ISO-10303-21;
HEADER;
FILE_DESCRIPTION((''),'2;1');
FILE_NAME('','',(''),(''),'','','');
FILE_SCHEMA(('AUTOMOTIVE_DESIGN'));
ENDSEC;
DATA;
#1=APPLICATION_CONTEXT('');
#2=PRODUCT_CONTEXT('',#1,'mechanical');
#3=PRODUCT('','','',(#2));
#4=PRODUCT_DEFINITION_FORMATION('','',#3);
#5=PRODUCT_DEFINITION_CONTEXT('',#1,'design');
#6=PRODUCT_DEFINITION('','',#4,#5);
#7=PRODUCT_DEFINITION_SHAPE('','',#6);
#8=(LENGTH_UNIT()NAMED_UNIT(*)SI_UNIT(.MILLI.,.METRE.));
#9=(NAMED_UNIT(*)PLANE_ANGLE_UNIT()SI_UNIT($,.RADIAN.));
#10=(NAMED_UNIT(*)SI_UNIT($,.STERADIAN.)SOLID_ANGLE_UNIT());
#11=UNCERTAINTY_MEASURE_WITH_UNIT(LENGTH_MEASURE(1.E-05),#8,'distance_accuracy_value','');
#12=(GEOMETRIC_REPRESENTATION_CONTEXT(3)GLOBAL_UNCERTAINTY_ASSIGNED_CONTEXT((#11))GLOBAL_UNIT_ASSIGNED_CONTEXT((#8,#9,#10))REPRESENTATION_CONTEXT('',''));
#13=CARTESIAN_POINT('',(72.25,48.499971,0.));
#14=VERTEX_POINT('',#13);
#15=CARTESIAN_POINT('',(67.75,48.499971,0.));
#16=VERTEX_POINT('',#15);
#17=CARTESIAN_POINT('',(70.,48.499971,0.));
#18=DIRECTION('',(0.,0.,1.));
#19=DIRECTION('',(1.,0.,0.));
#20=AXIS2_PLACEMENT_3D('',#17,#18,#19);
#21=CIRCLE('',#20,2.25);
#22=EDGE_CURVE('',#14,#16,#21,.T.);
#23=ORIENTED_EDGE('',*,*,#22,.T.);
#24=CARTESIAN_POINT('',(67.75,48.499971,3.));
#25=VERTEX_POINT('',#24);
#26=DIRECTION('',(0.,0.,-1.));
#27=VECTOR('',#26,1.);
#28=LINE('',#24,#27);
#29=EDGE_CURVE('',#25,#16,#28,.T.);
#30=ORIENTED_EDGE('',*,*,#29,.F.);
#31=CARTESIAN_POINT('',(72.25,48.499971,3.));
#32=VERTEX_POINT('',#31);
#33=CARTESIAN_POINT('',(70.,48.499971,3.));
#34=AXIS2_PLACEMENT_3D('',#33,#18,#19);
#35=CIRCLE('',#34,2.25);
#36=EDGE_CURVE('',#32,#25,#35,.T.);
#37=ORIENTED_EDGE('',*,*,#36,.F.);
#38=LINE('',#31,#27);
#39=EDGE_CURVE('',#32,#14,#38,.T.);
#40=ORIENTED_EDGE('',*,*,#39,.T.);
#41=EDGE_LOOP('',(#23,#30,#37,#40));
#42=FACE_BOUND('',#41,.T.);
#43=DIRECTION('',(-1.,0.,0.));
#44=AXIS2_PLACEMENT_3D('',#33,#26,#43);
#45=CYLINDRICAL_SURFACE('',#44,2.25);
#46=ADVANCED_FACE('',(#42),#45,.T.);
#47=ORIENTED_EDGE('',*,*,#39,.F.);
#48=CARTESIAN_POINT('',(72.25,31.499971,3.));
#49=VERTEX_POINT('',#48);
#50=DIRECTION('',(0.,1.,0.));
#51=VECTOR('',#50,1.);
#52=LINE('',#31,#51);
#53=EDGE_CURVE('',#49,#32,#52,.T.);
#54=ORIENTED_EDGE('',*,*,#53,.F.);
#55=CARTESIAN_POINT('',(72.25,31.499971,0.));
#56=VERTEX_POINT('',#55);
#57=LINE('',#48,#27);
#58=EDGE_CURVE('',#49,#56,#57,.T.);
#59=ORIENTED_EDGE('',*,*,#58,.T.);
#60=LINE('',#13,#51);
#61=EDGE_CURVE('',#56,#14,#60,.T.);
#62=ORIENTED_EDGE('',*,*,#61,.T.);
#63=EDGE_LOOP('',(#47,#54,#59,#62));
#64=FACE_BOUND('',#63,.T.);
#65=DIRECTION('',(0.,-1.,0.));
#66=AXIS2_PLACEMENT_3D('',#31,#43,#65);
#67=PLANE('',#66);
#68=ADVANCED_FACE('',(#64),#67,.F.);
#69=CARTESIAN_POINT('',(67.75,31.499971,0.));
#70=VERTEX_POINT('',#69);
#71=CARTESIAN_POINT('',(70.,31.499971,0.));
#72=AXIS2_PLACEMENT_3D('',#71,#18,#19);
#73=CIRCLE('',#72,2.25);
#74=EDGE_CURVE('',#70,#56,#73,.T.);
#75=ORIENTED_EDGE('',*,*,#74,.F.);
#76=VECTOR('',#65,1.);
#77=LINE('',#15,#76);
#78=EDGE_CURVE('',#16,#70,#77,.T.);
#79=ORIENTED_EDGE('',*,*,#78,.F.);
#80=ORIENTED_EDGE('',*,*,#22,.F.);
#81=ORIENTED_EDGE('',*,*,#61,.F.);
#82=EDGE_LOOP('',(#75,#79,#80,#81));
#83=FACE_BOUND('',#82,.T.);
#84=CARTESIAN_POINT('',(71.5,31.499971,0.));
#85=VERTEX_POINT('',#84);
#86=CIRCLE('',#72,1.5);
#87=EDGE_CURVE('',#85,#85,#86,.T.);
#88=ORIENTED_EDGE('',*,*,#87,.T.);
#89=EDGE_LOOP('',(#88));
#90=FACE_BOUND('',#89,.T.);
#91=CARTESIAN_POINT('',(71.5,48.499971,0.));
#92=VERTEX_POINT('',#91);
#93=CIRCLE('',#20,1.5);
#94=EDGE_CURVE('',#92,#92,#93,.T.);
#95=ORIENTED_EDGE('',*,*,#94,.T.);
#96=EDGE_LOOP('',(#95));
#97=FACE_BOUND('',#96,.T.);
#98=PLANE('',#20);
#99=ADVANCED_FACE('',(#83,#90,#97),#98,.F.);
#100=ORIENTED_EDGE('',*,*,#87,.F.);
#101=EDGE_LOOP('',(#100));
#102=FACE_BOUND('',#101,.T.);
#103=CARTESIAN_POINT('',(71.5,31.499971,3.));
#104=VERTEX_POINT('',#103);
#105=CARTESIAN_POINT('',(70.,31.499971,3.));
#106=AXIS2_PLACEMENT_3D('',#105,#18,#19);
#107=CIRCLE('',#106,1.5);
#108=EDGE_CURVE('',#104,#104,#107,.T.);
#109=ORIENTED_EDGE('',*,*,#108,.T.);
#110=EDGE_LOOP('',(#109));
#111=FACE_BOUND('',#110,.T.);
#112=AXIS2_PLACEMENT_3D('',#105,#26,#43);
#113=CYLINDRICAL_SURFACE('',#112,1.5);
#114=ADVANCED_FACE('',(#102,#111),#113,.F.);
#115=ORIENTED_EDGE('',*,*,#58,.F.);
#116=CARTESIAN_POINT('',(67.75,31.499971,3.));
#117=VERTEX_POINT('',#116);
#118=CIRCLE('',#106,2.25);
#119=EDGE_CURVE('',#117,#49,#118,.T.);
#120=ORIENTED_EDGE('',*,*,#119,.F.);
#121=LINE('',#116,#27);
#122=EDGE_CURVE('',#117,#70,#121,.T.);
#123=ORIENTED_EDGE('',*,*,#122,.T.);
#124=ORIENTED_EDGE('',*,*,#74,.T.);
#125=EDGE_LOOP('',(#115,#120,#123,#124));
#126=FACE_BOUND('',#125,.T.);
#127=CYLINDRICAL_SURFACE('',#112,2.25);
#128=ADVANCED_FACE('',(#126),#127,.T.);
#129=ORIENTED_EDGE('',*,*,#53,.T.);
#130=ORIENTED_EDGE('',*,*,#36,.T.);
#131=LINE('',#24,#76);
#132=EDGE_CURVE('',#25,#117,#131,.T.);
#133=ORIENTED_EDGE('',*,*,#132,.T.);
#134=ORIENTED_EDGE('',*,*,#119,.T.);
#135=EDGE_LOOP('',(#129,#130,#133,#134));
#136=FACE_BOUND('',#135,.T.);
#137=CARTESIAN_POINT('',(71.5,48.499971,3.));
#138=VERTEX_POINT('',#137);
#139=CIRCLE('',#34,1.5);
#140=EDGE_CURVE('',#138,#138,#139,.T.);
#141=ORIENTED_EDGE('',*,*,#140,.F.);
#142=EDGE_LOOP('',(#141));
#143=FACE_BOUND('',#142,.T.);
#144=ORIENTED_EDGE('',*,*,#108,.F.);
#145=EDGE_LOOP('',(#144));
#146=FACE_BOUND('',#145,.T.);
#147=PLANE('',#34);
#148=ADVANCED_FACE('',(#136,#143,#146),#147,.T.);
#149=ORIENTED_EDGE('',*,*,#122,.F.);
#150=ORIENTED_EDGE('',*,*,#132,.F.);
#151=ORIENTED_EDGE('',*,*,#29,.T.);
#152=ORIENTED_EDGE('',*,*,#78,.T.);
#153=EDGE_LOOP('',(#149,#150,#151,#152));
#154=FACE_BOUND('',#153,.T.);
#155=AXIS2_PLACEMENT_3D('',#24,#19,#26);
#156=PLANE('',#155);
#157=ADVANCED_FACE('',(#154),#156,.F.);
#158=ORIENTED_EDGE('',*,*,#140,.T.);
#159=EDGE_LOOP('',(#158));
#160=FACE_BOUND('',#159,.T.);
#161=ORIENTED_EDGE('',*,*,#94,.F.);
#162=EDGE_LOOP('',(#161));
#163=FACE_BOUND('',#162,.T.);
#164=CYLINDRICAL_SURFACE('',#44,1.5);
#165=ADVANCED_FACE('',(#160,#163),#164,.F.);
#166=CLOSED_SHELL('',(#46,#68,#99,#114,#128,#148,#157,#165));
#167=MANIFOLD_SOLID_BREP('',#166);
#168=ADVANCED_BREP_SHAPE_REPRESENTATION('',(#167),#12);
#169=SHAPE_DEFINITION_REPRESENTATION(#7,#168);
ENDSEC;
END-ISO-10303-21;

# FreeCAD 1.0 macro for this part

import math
import FreeCAD as App
import Part
import Sketcher
Q = App.Units.Quantity

doc = App.newDocument("Part")
body = doc.addObject("PartDesign::Body", "Body")

sketch1 = doc.addObject("Sketcher::SketchObject", "Sketch")
body.addObject(sketch1)
sketch1.AttachmentSupport = (doc.XY_Plane, [""])
sketch1.MapMode = "FlatFace"
sketch1.addGeometry([
    Part.LineSegment(App.Vector(67.75, 48.499971, 0), App.Vector(67.75, 31.499971, 0)),
    Part.ArcOfCircle(Part.Circle(App.Vector(70, 31.499971, 0), App.Vector(0, 0, 1), 2.25), math.radians(180), math.radians(360)),
    Part.LineSegment(App.Vector(72.25, 31.499971, 0), App.Vector(72.25, 48.499971, 0)),
    Part.ArcOfCircle(Part.Circle(App.Vector(70, 48.499971, 0), App.Vector(0, 0, 1), 2.25), math.radians(0), math.radians(180)),
    Part.Circle(App.Vector(70, 31.499971, 0), App.Vector(0, 0, 1), 1.5),
    Part.Circle(App.Vector(70, 48.499971, 0), App.Vector(0, 0, 1), 1.5),
], False)
sketch1.addConstraint([
    Sketcher.Constraint("Tangent", 0, 2, 1, 1),
    Sketcher.Constraint("Tangent", 1, 2, 2, 1),
    Sketcher.Constraint("Tangent", 2, 2, 3, 1),
    Sketcher.Constraint("Tangent", 3, 2, 0, 1),
    Sketcher.Constraint("Vertical", 0),
    Sketcher.Constraint("Vertical", 2),
    Sketcher.Constraint("Coincident", 4, 3, 1, 3),
    Sketcher.Constraint("Coincident", 5, 3, 3, 3),
    Sketcher.Constraint("Equal", 4, 5),
    Sketcher.Constraint("Diameter", 4, Q("3 mm")),
    Sketcher.Constraint("DistanceY", 0, 2, 0, 1, Q("17 mm")),
    Sketcher.Constraint("Radius", 1, Q("2.25 mm")),
    Sketcher.Constraint("DistanceX", -1, 1, 1, 3, Q("70 mm")),
    Sketcher.Constraint("DistanceY", -1, 1, 1, 3, Q("31.499971 mm")),
])
pad1 = doc.addObject("PartDesign::Pad", "Pad")
body.addObject(pad1)
pad1.Profile = sketch1
pad1.Length = 3

doc.recompute()
